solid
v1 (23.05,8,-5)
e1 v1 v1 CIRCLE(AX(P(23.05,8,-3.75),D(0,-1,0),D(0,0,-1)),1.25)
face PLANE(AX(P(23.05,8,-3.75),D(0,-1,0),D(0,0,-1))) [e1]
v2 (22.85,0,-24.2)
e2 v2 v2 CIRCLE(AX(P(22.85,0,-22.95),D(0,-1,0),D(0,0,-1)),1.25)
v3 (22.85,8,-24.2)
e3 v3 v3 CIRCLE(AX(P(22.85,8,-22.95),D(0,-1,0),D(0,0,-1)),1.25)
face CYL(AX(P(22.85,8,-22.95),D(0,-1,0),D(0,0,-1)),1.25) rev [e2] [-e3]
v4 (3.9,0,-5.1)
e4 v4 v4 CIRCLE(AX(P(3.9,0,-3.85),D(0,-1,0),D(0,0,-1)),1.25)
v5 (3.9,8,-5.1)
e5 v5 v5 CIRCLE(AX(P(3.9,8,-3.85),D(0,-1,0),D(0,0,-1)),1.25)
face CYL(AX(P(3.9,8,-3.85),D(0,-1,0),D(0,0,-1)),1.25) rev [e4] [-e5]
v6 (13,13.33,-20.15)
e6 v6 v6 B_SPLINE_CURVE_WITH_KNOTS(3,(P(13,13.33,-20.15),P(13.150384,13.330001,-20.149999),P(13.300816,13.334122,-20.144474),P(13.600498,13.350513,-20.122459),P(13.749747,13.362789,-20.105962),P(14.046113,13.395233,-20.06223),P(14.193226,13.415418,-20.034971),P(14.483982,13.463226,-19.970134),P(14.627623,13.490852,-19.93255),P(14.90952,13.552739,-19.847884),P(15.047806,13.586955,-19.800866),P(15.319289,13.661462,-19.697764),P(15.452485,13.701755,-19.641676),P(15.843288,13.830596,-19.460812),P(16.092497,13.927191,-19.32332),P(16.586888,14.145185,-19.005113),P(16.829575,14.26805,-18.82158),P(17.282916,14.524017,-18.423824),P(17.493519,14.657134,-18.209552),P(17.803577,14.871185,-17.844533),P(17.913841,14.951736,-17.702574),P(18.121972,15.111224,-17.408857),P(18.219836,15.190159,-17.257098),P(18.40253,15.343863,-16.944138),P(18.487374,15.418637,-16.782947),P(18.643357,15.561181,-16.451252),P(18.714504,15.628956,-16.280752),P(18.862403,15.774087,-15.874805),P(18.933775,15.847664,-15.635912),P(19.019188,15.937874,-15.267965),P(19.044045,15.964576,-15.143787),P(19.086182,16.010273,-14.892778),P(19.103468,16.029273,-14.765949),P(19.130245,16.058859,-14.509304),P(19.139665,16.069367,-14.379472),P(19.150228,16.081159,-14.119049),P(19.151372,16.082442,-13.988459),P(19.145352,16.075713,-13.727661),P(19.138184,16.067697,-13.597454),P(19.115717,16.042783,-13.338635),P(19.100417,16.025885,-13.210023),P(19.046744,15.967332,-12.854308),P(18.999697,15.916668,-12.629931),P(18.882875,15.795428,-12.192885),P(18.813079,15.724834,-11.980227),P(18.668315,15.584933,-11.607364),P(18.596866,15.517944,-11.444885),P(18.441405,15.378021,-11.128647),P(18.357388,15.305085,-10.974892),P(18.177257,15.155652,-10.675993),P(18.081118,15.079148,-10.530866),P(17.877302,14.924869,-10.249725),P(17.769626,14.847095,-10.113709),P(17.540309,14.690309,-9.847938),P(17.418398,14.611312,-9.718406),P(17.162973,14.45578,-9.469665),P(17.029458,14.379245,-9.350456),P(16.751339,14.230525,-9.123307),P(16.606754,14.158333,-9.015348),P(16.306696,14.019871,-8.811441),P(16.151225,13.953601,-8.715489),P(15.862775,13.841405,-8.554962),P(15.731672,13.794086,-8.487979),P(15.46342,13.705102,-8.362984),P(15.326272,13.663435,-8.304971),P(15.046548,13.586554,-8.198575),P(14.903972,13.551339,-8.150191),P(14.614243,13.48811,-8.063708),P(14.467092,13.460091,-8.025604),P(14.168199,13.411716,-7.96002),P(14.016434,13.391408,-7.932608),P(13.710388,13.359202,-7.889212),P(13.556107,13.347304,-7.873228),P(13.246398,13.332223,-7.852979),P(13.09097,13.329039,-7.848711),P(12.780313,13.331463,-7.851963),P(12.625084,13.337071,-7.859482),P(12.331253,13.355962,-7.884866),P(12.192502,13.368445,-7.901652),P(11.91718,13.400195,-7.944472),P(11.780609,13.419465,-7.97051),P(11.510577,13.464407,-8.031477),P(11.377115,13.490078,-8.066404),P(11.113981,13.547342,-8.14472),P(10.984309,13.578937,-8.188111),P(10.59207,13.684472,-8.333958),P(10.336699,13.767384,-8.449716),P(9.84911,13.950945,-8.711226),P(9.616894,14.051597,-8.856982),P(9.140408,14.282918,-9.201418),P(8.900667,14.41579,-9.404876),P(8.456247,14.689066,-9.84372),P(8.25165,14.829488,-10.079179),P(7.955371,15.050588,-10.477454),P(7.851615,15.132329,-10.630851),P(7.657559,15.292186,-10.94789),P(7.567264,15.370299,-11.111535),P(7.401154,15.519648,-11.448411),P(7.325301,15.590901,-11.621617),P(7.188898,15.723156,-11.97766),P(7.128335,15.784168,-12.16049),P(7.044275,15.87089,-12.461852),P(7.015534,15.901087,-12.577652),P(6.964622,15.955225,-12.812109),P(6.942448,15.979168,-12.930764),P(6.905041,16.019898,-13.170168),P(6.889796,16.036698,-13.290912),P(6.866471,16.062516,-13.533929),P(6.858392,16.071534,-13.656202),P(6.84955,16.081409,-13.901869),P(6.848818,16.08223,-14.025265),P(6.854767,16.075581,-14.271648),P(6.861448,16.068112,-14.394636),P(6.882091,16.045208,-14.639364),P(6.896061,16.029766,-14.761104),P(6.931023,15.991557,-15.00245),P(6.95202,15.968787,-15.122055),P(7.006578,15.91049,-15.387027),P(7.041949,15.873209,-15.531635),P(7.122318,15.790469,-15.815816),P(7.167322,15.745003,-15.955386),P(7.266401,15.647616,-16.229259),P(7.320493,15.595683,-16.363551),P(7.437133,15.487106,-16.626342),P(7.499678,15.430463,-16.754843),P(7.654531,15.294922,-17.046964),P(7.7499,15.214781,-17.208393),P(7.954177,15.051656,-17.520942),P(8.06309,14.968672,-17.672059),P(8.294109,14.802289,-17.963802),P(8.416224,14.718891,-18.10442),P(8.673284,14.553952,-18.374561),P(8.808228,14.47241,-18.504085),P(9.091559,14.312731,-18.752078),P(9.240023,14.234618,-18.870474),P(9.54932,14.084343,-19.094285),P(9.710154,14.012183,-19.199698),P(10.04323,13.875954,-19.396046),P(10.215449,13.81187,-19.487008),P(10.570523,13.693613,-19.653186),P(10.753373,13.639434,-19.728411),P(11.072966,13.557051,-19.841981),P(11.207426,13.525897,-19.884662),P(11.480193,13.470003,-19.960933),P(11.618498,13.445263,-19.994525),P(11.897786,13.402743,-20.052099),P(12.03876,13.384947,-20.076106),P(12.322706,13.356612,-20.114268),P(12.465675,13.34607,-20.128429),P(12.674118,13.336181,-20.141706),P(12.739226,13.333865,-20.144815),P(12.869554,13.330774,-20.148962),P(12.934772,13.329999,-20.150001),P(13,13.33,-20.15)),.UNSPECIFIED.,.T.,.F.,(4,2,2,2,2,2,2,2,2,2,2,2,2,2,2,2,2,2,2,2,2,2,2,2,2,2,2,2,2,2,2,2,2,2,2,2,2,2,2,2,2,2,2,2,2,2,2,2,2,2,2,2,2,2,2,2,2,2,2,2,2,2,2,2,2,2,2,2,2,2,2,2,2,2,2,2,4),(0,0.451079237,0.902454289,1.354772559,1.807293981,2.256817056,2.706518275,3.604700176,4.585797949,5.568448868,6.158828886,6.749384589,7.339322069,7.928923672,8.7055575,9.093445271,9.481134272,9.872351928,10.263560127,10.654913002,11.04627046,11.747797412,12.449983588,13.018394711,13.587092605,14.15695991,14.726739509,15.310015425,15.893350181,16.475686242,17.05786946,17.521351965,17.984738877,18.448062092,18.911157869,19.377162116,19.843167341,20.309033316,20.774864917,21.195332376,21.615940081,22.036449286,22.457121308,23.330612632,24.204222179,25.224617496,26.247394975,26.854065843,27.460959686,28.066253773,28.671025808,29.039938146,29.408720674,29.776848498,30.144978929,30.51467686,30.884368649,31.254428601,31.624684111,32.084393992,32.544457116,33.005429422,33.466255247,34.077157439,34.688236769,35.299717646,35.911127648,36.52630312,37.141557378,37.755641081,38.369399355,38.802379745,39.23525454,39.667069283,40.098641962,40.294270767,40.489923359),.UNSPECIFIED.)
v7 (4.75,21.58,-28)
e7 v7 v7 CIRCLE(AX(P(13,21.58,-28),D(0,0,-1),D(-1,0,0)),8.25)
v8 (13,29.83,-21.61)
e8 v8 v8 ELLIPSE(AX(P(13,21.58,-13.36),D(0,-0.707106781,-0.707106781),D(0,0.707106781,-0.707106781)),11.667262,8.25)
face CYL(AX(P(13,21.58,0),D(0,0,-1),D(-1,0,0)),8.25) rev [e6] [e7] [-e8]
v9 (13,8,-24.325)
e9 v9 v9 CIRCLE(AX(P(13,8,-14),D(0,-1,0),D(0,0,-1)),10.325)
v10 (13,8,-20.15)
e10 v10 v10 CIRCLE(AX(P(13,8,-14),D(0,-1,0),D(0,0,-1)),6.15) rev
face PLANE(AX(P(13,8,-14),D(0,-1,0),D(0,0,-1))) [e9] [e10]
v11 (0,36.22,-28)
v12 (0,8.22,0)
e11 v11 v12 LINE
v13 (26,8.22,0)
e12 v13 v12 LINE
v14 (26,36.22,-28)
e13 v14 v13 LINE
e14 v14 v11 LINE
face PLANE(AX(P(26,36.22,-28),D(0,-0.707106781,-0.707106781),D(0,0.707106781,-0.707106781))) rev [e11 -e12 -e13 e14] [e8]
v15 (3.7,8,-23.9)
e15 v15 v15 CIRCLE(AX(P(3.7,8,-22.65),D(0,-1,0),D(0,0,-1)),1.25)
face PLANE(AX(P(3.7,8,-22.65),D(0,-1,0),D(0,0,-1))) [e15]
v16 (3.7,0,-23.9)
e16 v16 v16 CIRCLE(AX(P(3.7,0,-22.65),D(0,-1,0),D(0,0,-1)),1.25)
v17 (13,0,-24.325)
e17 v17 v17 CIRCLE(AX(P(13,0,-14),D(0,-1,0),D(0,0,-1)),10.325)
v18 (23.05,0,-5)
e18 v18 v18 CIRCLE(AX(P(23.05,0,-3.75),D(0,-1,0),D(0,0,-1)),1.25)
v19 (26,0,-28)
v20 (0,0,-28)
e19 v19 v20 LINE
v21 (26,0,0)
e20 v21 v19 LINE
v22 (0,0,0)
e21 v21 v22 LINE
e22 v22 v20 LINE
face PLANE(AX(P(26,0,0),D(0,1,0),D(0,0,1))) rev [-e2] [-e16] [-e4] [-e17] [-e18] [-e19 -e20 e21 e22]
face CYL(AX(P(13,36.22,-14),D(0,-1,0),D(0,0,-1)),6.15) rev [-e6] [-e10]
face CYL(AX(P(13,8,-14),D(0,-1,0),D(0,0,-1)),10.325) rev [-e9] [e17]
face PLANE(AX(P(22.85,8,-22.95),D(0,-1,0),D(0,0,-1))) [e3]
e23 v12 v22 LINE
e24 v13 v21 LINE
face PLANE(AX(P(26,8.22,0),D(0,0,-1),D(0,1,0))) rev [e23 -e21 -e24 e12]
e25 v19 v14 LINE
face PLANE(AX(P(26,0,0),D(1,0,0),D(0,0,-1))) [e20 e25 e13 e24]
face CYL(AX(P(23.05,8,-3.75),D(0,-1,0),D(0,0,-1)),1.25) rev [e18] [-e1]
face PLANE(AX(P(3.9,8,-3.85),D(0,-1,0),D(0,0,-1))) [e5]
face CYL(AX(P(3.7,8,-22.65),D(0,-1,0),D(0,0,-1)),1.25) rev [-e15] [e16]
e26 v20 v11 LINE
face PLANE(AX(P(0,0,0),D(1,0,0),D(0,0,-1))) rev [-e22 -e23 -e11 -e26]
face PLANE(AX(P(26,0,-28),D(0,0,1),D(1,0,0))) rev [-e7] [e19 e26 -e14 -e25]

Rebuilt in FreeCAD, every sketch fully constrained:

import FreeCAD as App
import Part
import Sketcher
Q = App.Units.Quantity

doc = App.newDocument("Part")
body = doc.addObject("PartDesign::Body", "Body")

# Sketch on YZ plane
sketch1 = body.newObject("Sketcher::SketchObject", "Sketch")
sketch1.AttachmentSupport = (doc.getObject("YZ_Plane"), [""])
sketch1.MapMode = "FlatFace"
sketch1.addGeometry([
    Part.LineSegment(App.Vector(0, 0, 0), App.Vector(0, -28, 0)),
    Part.LineSegment(App.Vector(0, -28, 0), App.Vector(36.22, -28, 0)),
    Part.LineSegment(App.Vector(36.22, -28, 0), App.Vector(8.22, 0, 0)),
    Part.LineSegment(App.Vector(8.22, 0, 0), App.Vector(0, 0, 0)),
], False)
sketch1.addConstraint([
    Sketcher.Constraint("Coincident", 0, 2, 1, 1),
    Sketcher.Constraint("Coincident", 1, 2, 2, 1),
    Sketcher.Constraint("Coincident", 2, 2, 3, 1),
    Sketcher.Constraint("Coincident", 3, 2, 0, 1),
    Sketcher.Constraint("Vertical", 0),
    Sketcher.Constraint("Horizontal", 1),
    Sketcher.Constraint("Horizontal", 3),
    Sketcher.Constraint("Coincident", 3, 2, -1, 1),
    Sketcher.Constraint("DistanceY", 0, 2, 0, 1, 28.0),
    Sketcher.Constraint("Angle", 2, Q("135 deg")),
    Sketcher.Constraint("DistanceX", 1, 1, 1, 2, 36.22),
])
pad1 = body.newObject("PartDesign::Pad", "Pad")
pad1.Profile = sketch1
pad1.Length = 26

# Sketch on XY plane
sketch2 = body.newObject("Sketcher::SketchObject", "Sketch001")
sketch2.AttachmentSupport = (doc.getObject("XY_Plane"), [""])
sketch2.MapMode = "FlatFace"
sketch2.AttachmentOffset = App.Placement(App.Vector(0, 0, -28), App.Rotation())
sketch2.addGeometry(Part.Circle(App.Vector(13, 21.58, 0), App.Vector(0, 0, 1), 8.25), False)
sketch2.addConstraint([
    Sketcher.Constraint("Diameter", 0, 16.5),
    Sketcher.Constraint("DistanceX", -1, 1, 0, 3, 13.0),
    Sketcher.Constraint("DistanceY", -1, 1, 0, 3, 21.58),
])
pocket1 = body.newObject("PartDesign::Pocket", "Pocket")
pocket1.Profile = sketch2
pocket1.Type = "ThroughAll"
pocket1.Reversed = True

# Sketch on XZ plane
sketch3 = body.newObject("Sketcher::SketchObject", "Sketch002")
sketch3.AttachmentSupport = (doc.getObject("XZ_Plane"), [""])
sketch3.MapMode = "FlatFace"
sketch3.addGeometry(Part.Circle(App.Vector(13, -14, 0), App.Vector(0, 0, 1), 6.15), False)
sketch3.addConstraint([
    Sketcher.Constraint("Diameter", 0, 12.3),
    Sketcher.Constraint("DistanceX", -1, 1, 0, 3, 13.0),
    Sketcher.Constraint("DistanceY", 0, 3, -1, 1, 14.0),
])
pocket2 = body.newObject("PartDesign::Pocket", "Pocket001")
pocket2.Profile = sketch3
pocket2.Type = "ThroughAll"

# Sketch on XZ plane
sketch4 = body.newObject("Sketcher::SketchObject", "Sketch003")
sketch4.AttachmentSupport = (doc.getObject("XZ_Plane"), [""])
sketch4.MapMode = "FlatFace"
sketch4.addGeometry([
    Part.Circle(App.Vector(13, -14, 0), App.Vector(0, 0, 1), 10.325),  # 0
    Part.Circle(App.Vector(3.9, -3.85, 0), App.Vector(0, 0, 1), 1.25),  # 1
    Part.Circle(App.Vector(23.05, -3.75, 0), App.Vector(0, 0, 1), 1.25),  # 2
    Part.Circle(App.Vector(22.85, -22.95, 0), App.Vector(0, 0, 1), 1.25),  # 3
    Part.Circle(App.Vector(3.7, -22.65, 0), App.Vector(0, 0, 1), 1.25),  # 4
], False)
sketch4.addConstraint([
    Sketcher.Constraint("Equal", 1, 2),
    Sketcher.Constraint("Equal", 2, 3),
    Sketcher.Constraint("Equal", 3, 4),
    Sketcher.Constraint("Diameter", 1, 2.5),
    Sketcher.Constraint("Diameter", 0, 20.65),
    Sketcher.Constraint("DistanceX", -1, 1, 0, 3, 13.0),
    Sketcher.Constraint("DistanceY", 0, 3, -1, 1, 14.0),
    Sketcher.Constraint("DistanceX", -1, 1, 1, 3, 3.9),
    Sketcher.Constraint("DistanceX", -1, 1, 4, 3, 3.7),
    Sketcher.Constraint("DistanceY", 1, 3, 2, 3, 0.1),
    Sketcher.Constraint("DistanceX", 3, 3, 2, 3, 0.2),
    Sketcher.Constraint("DistanceY", 3, 3, 2, 3, 19.2),
    Sketcher.Constraint("DistanceY", 4, 3, 1, 3, 18.8),
    Sketcher.Constraint("DistanceY", 1, 3, -1, 1, 3.85),
    Sketcher.Constraint("DistanceX", -1, 1, 2, 3, 23.05),
])
pocket3 = body.newObject("PartDesign::Pocket", "Pocket002")
pocket3.Profile = sketch4
pocket3.Length = 8

doc.recompute()
